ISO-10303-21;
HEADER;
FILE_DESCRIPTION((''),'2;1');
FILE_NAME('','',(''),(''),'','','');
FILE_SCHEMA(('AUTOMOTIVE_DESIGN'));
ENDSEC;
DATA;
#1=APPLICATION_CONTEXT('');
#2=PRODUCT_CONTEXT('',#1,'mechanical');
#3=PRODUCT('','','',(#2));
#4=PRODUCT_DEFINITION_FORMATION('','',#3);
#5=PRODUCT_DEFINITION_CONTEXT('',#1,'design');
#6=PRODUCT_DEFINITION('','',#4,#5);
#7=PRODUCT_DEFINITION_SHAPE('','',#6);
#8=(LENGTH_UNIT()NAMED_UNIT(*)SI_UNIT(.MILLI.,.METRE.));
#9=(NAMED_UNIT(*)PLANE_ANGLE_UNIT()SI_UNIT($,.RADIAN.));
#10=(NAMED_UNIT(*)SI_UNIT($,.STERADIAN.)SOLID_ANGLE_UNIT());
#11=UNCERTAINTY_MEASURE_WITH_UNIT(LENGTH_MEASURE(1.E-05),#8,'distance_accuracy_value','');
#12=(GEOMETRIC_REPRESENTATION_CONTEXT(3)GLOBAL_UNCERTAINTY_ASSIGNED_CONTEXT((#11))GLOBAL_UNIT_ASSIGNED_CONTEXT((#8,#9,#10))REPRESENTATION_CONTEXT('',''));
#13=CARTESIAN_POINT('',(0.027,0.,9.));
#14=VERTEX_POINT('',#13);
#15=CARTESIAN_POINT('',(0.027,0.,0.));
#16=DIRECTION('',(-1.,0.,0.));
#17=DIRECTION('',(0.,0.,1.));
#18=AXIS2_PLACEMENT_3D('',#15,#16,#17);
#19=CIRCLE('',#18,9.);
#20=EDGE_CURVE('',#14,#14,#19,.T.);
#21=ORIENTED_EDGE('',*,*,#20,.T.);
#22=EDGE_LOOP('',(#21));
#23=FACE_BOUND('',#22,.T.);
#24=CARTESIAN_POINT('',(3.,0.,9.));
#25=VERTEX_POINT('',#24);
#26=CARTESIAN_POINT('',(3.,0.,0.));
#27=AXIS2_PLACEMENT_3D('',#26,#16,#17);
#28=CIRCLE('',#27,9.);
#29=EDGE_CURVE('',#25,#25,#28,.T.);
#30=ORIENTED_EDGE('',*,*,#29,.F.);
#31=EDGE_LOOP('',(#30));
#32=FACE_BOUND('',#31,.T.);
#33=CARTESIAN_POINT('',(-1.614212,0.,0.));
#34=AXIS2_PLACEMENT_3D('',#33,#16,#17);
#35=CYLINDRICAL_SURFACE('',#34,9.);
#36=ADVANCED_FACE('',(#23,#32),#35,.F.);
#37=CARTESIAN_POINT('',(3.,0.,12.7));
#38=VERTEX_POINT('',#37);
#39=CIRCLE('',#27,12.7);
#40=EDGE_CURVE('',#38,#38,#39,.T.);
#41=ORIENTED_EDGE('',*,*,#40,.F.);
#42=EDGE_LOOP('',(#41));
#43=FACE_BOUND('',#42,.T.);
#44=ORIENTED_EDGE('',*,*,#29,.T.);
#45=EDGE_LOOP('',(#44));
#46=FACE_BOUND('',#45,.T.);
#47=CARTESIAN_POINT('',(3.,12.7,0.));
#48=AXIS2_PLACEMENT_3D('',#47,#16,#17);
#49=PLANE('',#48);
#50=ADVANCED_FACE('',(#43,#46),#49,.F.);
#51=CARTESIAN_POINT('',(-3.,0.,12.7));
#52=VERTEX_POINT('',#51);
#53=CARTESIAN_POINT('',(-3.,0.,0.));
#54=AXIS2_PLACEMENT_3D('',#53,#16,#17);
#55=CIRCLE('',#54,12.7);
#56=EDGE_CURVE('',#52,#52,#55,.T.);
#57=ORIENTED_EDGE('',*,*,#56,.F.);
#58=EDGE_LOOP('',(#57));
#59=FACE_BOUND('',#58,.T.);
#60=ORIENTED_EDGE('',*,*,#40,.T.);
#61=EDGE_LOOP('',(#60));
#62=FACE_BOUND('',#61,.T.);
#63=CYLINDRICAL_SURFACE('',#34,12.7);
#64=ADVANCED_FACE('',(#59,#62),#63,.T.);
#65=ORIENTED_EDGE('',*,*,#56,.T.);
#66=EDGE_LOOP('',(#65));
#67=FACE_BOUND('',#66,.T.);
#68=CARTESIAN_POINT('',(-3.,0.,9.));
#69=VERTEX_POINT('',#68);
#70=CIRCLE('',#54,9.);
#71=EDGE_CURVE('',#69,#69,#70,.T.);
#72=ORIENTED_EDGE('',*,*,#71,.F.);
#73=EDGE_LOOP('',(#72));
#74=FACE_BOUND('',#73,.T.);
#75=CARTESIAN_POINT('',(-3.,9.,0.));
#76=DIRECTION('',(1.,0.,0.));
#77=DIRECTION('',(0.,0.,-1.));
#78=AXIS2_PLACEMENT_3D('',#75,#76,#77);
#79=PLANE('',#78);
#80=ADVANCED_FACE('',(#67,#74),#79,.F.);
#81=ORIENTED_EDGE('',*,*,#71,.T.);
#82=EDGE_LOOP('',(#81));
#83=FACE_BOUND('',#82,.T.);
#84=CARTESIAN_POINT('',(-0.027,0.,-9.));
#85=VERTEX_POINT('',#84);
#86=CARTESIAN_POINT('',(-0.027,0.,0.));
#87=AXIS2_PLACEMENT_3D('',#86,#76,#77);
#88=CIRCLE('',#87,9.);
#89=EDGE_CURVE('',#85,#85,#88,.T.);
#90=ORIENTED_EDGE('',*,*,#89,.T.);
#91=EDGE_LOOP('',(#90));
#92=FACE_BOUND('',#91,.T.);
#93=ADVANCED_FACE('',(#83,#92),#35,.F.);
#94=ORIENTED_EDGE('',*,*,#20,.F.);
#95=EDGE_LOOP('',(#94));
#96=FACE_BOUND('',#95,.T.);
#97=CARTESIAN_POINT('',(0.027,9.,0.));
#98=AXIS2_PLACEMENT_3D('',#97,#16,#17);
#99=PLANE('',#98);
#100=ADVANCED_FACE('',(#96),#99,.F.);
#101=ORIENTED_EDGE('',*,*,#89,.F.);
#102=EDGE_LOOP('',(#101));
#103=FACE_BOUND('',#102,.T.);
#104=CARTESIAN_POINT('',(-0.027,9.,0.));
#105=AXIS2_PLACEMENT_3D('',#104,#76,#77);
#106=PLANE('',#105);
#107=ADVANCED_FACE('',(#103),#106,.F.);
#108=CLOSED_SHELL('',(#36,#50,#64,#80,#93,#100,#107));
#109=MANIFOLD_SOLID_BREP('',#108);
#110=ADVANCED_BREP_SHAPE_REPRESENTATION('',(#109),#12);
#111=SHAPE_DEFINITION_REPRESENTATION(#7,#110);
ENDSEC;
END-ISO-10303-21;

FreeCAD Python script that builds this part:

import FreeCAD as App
import Part
import Sketcher

V = App.Vector


def add_polygon(sketch, points):
    """Adds a closed chain of lines whose ends are joined by coincident constraints."""
    first, n = sketch.GeometryCount, len(points)
    for a, b in zip(points, points[1:] + points[:1]):
        sketch.addGeometry(Part.LineSegment(App.Vector(*a, 0), App.Vector(*b, 0)), False)
    for i in range(n):
        sketch.addConstraint(Sketcher.Constraint("Coincident", first + i, 2, first + (i + 1) % n, 1))

doc = App.newDocument("Part")
body = doc.addObject("PartDesign::Body", "Body")

# Sketch on XY plane
sketch1 = body.newObject("Sketcher::SketchObject", "Sketch")
sketch1.AttachmentSupport = (doc.getObject("XY_Plane"), [""])
sketch1.MapMode = "FlatFace"
add_polygon(sketch1, [(-0.03, 9), (-0.03, 0), (0.03, 0), (0.03, 9)])  # lines 0-3
sketch1.addConstraint(Sketcher.Constraint("Vertical", 0))
sketch1.addConstraint(Sketcher.Constraint("Horizontal", 1))
sketch1.addConstraint(Sketcher.Constraint("Vertical", 2))
sketch1.addConstraint(Sketcher.Constraint("Horizontal", 3))
sketch1.addConstraint(Sketcher.Constraint("Symmetric", 0, 2, 1, 2, -1, 1))
sketch1.addConstraint(Sketcher.Constraint("DistanceY", 0, 2, 0, 1, 9.0))
sketch1.addConstraint(Sketcher.Constraint("DistanceX", 1, 1, 1, 2, 0.054))
revolution = body.newObject("PartDesign::Revolution", "Revolution")
revolution.Profile = sketch1
revolution.ReferenceAxis = (sketch1, ["H_Axis"])
revolution.Angle = 360

# Sketch on XY plane
sketch2 = body.newObject("Sketcher::SketchObject", "Sketch001")
sketch2.AttachmentSupport = (doc.getObject("XY_Plane"), [""])
sketch2.MapMode = "FlatFace"
add_polygon(sketch2, [(-3, 12.7), (-3, 9), (3, 9), (3, 12.7)])  # lines 0-3
sketch2.addConstraint(Sketcher.Constraint("Vertical", 0))
sketch2.addConstraint(Sketcher.Constraint("Horizontal", 1))
sketch2.addConstraint(Sketcher.Constraint("Vertical", 2))
sketch2.addConstraint(Sketcher.Constraint("Horizontal", 3))
sketch2.addConstraint(Sketcher.Constraint("DistanceX", 1, 1, 1, 2, 6.0))
sketch2.addConstraint(Sketcher.Constraint("DistanceY", 0, 2, 0, 1, 3.7))
sketch2.addConstraint(Sketcher.Constraint("DistanceX", 0, 2, -1, 1, 3.0))
sketch2.addConstraint(Sketcher.Constraint("DistanceY", -1, 1, 0, 2, 9.0))
revolution2 = body.newObject("PartDesign::Revolution", "Revolution001")
revolution2.Profile = sketch2
revolution2.ReferenceAxis = (sketch2, ["H_Axis"])
revolution2.Angle = 360

doc.recompute()
